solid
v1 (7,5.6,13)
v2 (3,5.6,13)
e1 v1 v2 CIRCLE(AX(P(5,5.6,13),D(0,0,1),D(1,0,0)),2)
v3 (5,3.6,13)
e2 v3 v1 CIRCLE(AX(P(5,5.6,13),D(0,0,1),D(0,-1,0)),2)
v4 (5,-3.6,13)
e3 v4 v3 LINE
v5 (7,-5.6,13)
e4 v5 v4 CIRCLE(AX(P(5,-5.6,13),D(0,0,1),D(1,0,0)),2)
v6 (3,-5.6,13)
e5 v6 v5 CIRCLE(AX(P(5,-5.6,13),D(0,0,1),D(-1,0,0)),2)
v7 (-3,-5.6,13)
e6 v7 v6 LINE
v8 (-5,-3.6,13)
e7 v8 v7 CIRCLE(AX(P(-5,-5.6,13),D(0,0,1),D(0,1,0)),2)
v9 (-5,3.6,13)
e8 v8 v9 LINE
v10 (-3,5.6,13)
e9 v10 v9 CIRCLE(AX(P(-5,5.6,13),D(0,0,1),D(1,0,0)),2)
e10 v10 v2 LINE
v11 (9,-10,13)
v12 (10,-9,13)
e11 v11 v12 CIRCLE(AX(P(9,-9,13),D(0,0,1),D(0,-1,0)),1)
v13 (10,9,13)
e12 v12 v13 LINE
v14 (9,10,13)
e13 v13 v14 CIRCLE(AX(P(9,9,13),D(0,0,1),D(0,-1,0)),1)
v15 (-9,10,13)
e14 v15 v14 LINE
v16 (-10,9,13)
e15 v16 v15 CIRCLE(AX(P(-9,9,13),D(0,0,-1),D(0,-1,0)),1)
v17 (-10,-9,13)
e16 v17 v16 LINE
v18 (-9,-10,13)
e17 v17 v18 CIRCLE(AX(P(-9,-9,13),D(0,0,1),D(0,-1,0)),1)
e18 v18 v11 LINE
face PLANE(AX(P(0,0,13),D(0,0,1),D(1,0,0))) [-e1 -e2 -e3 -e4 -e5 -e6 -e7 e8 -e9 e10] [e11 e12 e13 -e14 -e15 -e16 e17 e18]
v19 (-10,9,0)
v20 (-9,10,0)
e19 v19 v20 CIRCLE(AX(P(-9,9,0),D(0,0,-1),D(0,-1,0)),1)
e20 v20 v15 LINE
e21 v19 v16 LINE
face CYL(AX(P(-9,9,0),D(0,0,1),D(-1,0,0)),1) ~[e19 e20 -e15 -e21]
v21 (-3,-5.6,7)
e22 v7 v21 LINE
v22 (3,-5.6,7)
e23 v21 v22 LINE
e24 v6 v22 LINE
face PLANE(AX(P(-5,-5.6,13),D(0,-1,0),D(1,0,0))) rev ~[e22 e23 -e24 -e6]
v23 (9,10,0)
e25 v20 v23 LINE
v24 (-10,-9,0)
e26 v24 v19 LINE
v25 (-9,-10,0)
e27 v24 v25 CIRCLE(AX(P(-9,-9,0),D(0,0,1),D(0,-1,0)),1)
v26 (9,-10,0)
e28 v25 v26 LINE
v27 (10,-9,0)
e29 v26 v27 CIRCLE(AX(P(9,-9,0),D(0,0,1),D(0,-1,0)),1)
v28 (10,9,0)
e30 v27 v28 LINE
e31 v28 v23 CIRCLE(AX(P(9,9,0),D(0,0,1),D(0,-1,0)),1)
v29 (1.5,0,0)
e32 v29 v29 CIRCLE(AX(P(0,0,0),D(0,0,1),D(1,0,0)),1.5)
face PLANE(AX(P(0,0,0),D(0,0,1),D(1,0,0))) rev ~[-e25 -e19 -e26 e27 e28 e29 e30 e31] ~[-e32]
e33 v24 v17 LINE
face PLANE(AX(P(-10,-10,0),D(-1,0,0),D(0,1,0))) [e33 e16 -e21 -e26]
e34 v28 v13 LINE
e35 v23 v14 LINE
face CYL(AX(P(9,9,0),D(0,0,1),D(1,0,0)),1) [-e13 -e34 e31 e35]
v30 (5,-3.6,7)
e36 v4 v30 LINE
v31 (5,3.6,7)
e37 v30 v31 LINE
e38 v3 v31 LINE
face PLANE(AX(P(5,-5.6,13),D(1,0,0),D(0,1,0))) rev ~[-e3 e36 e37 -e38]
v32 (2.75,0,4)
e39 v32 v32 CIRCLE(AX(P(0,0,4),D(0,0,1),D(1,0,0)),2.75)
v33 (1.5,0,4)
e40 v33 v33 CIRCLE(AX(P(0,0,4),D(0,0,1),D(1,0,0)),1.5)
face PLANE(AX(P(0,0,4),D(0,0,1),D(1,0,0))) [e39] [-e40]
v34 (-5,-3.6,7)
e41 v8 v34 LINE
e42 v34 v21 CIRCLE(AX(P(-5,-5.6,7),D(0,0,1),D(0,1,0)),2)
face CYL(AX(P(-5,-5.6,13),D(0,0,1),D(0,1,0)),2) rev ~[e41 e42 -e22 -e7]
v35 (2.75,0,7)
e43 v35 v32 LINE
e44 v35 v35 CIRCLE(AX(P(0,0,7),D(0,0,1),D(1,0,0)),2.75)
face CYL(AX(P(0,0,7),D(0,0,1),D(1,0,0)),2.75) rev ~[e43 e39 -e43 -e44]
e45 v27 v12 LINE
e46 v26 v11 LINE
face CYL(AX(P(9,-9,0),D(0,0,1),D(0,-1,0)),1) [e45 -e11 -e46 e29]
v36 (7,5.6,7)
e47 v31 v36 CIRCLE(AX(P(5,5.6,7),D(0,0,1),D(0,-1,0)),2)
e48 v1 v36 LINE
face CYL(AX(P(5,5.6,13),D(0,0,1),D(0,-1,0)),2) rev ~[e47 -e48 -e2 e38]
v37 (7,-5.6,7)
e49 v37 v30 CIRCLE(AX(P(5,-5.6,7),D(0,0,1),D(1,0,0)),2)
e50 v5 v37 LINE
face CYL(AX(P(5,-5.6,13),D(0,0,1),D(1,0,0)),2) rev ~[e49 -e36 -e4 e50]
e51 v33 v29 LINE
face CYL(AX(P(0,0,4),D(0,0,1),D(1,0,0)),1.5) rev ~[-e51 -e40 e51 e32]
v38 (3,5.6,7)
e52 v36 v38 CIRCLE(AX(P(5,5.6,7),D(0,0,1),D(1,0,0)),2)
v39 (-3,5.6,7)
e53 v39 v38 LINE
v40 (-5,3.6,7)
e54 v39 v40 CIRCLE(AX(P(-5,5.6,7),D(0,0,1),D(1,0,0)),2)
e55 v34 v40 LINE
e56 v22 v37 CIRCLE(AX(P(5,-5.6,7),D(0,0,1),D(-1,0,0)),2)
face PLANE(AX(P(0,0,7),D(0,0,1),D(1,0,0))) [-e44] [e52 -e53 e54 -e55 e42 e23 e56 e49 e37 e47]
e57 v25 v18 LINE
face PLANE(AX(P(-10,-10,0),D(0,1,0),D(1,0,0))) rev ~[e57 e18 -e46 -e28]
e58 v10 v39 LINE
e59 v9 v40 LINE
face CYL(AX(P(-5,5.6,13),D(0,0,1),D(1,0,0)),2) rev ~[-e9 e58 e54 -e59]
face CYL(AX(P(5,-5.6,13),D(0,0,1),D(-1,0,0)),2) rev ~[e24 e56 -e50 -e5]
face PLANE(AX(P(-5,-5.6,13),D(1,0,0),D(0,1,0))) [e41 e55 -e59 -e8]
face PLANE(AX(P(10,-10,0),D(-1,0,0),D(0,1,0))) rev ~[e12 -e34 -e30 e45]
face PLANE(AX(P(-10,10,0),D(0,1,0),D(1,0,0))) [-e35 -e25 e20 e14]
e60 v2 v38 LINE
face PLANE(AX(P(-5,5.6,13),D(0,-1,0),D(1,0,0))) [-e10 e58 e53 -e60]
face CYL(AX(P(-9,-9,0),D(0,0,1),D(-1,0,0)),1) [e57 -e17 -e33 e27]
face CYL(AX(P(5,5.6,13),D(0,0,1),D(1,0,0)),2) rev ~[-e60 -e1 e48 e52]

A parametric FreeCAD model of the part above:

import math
import FreeCAD as App
import Part
import Sketcher
from FreeCAD import Vector
Q = App.Units.Quantity


def edges_at(feature, points):
    """Names of the edges that pass closest to the given points."""
    edges = feature.Shape.Edges
    near = lambda p: min(range(len(edges)), key=lambda i: edges[i].distToShape(Part.Vertex(*p))[0])
    return sorted({f"Edge{near(p) + 1}" for p in points})


def add_polygon(sketch, points):
    """Adds a closed chain of lines whose ends are joined by coincident constraints."""
    first, n = sketch.GeometryCount, len(points)
    for a, b in zip(points, points[1:] + points[:1]):
        sketch.addGeometry(Part.LineSegment(App.Vector(*a, 0), App.Vector(*b, 0)), False)
    for i in range(n):
        sketch.addConstraint(Sketcher.Constraint("Coincident", first + i, 2, first + (i + 1) % n, 1))

doc = App.newDocument("Part")
body = doc.addObject("PartDesign::Body", "Body")

sketch1 = body.newObject("Sketcher::SketchObject", "Sketch")
sketch1.AttachmentSupport = (doc.getObject("XY_Plane"), [""])
sketch1.MapMode = "FlatFace"
add_polygon(sketch1, [(-10, 10), (-10, -10), (10, -10), (10, 10)])
sketch1.addConstraint([
    Sketcher.Constraint("Vertical", 0),
    Sketcher.Constraint("Horizontal", 1),
    Sketcher.Constraint("Vertical", 2),
    Sketcher.Constraint("Horizontal", 3),
    Sketcher.Constraint("Symmetric", 0, 2, 2, 2, -1, 1),
    Sketcher.Constraint("Equal", 3, 0),
    Sketcher.Constraint("DistanceX", 1, 1, 1, 2, Q("20 mm")),
])
pad1 = body.newObject("PartDesign::Pad", "Pad")
pad1.Profile = sketch1
pad1.Length = 13
doc.recompute()

fillet = body.newObject("PartDesign::Fillet", "Fillet")
fillet.Base = (pad1, edges_at(pad1, [
    (10, -10, 6.5),
    (10, 10, 6.5),
    (-10, 10, 6.5),
    (-10, -10, 6.5),
]))
fillet.Radius = 1

sketch2 = body.newObject("Sketcher::SketchObject", "Sketch001")
sketch2.AttachmentSupport = (doc.getObject("XY_Plane"), [""])
sketch2.MapMode = "FlatFace"
sketch2.AttachmentOffset = App.Placement(Vector(0, 0, 13), App.Rotation())
add_polygon(sketch2, [(-5, 6), (-5, -6), (5, -6), (5, 6)])
sketch2.addConstraint([
    Sketcher.Constraint("Vertical", 0),
    Sketcher.Constraint("Horizontal", 1),
    Sketcher.Constraint("Vertical", 2),
    Sketcher.Constraint("Horizontal", 3),
    Sketcher.Constraint("Symmetric", 0, 2, 2, 2, -1, 1),
    Sketcher.Constraint("DistanceX", 1, 1, 1, 2, Q("10 mm")),
    Sketcher.Constraint("DistanceY", 0, 2, 0, 1, Q("11.2 mm")),
])
pocket1 = body.newObject("PartDesign::Pocket", "Pocket")
pocket1.Profile = sketch2
pocket1.Length = 6

sketch3 = body.newObject("Sketcher::SketchObject", "Sketch002")
sketch3.AttachmentSupport = (doc.getObject("XY_Plane"), [""])
sketch3.MapMode = "FlatFace"
sketch3.AttachmentOffset = App.Placement(Vector(0, 0, 7), App.Rotation())
sketch3.addGeometry(Part.Circle(Vector(0, 0, 0), Vector(0, 0, 1), 2.8), False)
sketch3.addConstraint([
    Sketcher.Constraint("Coincident", 0, 3, -1, 1),
    Sketcher.Constraint("Diameter", 0, Q("5.5 mm")),
])
pocket2 = body.newObject("PartDesign::Pocket", "Pocket001")
pocket2.Profile = sketch3
pocket2.Length = 3

sketch4 = body.newObject("Sketcher::SketchObject", "Sketch003")
sketch4.AttachmentSupport = (doc.getObject("XY_Plane"), [""])
sketch4.MapMode = "FlatFace"
sketch4.AttachmentOffset = App.Placement(Vector(0, 0, 13), App.Rotation())
sketch4.addGeometry([
    Part.ArcOfCircle(Part.Circle(Vector(5, 5.6, 0), Vector(0, 0, 1), 2), math.radians(0), math.radians(180)),
    Part.LineSegment(Vector(3, 5.6, 0), Vector(5, 5.6, 0)),
    Part.LineSegment(Vector(5, 5.6, 0), Vector(5, 3.6, 0)),
    Part.ArcOfCircle(Part.Circle(Vector(5, 5.6, 0), Vector(0, 0, 1), 2), math.radians(-90), math.radians(0)),
    Part.LineSegment(Vector(-5, -5.6, 0), Vector(-5, -3.6, 0)),
    Part.ArcOfCircle(Part.Circle(Vector(-5, -5.6, 0), Vector(0, 0, 1), 2), math.radians(90), math.radians(360)),
    Part.LineSegment(Vector(-3, -5.6, 0), Vector(-5, -5.6, 0)),
    Part.ArcOfCircle(Part.Circle(Vector(5, -5.6, 0), Vector(0, 0, 1), 2), math.radians(0), math.radians(90)),
    Part.LineSegment(Vector(5, -3.6, 0), Vector(5, -5.6, 0)),
    Part.LineSegment(Vector(5, -5.6, 0), Vector(3, -5.6, 0)),
    Part.ArcOfCircle(Part.Circle(Vector(5, -5.6, 0), Vector(0, 0, 1), 2), math.radians(180), math.radians(360)),
    Part.LineSegment(Vector(-5, 5.6, 0), Vector(-3, 5.6, 0)),
    Part.ArcOfCircle(Part.Circle(Vector(-5, 5.6, 0), Vector(0, 0, 1), 2), math.radians(0), math.radians(270)),
    Part.LineSegment(Vector(-5, 3.6, 0), Vector(-5, 5.6, 0)),
], False)
sketch4.addConstraint([
    Sketcher.Constraint("Coincident", 0, 2, 1, 1),
    Sketcher.Constraint("Coincident", 1, 2, 2, 1),
    Sketcher.Constraint("Coincident", 2, 2, 3, 1),
    Sketcher.Constraint("Tangent", 3, 2, 0, 1),
    Sketcher.Constraint("Coincident", 4, 2, 5, 1),
    Sketcher.Constraint("Coincident", 5, 2, 6, 1),
    Sketcher.Constraint("Coincident", 6, 2, 4, 1),
    Sketcher.Constraint("Coincident", 7, 2, 8, 1),
    Sketcher.Constraint("Coincident", 8, 2, 9, 1),
    Sketcher.Constraint("Coincident", 9, 2, 10, 1),
    Sketcher.Constraint("Tangent", 10, 2, 7, 1),
    Sketcher.Constraint("Coincident", 11, 2, 12, 1),
    Sketcher.Constraint("Coincident", 12, 2, 13, 1),
    Sketcher.Constraint("Coincident", 13, 2, 11, 1),
    Sketcher.Constraint("Horizontal", 1),
    Sketcher.Constraint("Vertical", 2),
    Sketcher.Constraint("Vertical", 4),
    Sketcher.Constraint("Horizontal", 6),
    Sketcher.Constraint("Vertical", 8),
    Sketcher.Constraint("Horizontal", 9),
    Sketcher.Constraint("Horizontal", 11),
    Sketcher.Constraint("Vertical", 13),
    Sketcher.Constraint("Coincident", 1, 2, 0, 3),
    Sketcher.Constraint("Coincident", 6, 2, 5, 3),
    Sketcher.Constraint("Coincident", 8, 2, 7, 3),
    Sketcher.Constraint("Coincident", 13, 2, 12, 3),
    Sketcher.Constraint("Equal", 0, 3),
    Sketcher.Constraint("Equal", 3, 5),
    Sketcher.Constraint("Equal", 5, 7),
    Sketcher.Constraint("Equal", 7, 10),
    Sketcher.Constraint("Equal", 10, 12),
    Sketcher.Constraint("Symmetric", 0, 3, 5, 3, -1, 1),
    Sketcher.Constraint("Symmetric", 7, 3, 12, 3, -1, 1),
    Sketcher.Constraint("Symmetric", 5, 3, 7, 3, -2),
    Sketcher.Constraint("Horizontal", 1, 2, 3, 2),
    Sketcher.Constraint("Horizontal", 9, 2, 10, 2),
    Sketcher.Constraint("Radius", 0, Q("2 mm")),
    Sketcher.Constraint("DistanceX", -1, 1, 0, 3, Q("5 mm")),
    Sketcher.Constraint("DistanceY", -1, 1, 0, 3, Q("5.6 mm")),
])
pocket3 = body.newObject("PartDesign::Pocket", "Pocket002")
pocket3.Profile = sketch4
pocket3.Length = 6

sketch5 = body.newObject("Sketcher::SketchObject", "Sketch004")
sketch5.AttachmentSupport = (doc.getObject("XY_Plane"), [""])
sketch5.MapMode = "FlatFace"
sketch5.AttachmentOffset = App.Placement(Vector(0, 0, 4), App.Rotation())
sketch5.addGeometry(Part.Circle(Vector(0, 0, 0), Vector(0, 0, 1), 1.5), False)
sketch5.addConstraint([
    Sketcher.Constraint("Coincident", 0, 3, -1, 1),
    Sketcher.Constraint("Diameter", 0, Q("3 mm")),
])
pocket4 = body.newObject("PartDesign::Pocket", "Pocket003")
pocket4.Profile = sketch5
pocket4.Type = "ThroughAll"

doc.recompute()
